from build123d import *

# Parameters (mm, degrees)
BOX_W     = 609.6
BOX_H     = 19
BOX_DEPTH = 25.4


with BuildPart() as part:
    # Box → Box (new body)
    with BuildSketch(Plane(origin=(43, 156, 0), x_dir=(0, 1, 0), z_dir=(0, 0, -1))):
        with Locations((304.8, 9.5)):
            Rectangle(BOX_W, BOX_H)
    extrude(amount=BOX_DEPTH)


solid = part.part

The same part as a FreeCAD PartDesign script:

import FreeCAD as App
import Part
import Sketcher

V = App.Vector
Q = App.Units.Quantity


def add_polygon(sketch, points):
    """Adds a closed chain of lines whose ends are joined by coincident constraints."""
    first, n = sketch.GeometryCount, len(points)
    for a, b in zip(points, points[1:] + points[:1]):
        sketch.addGeometry(Part.LineSegment(App.Vector(*a, 0), App.Vector(*b, 0)), False)
    for i in range(n):
        sketch.addConstraint(Sketcher.Constraint("Coincident", first + i, 2, first + (i + 1) % n, 1))

doc = App.newDocument("Part")
params = doc.addObject("Spreadsheet::Sheet", "Params")
for row, (alias, value) in enumerate([
    ("sketch1_height", "24 in"),
    ("pad1_length", "1 in"),
], start=1):
    params.set(f"A{row}", alias)
    params.set(f"B{row}", "=" + value)
    params.setAlias(f"B{row}", alias)

body = doc.addObject("PartDesign::Body", "Body")

sketch1 = doc.addObject("Sketcher::SketchObject", "Sketch")
body.addObject(sketch1)
sketch1.AttachmentSupport = (doc.XY_Plane, [""])
sketch1.MapMode = "FlatFace"
add_polygon(sketch1, [(62, 156), (43, 156), (43, 766), (62, 766)])
sketch1.addConstraint([
    Sketcher.Constraint("Horizontal", 0),
    Sketcher.Constraint("Vertical", 1),
    Sketcher.Constraint("Horizontal", 2),
    Sketcher.Constraint("Vertical", 3),
    Sketcher.Constraint("DistanceY", 1, 1, 1, 2, Q("24 in")),
    Sketcher.Constraint("DistanceX", 0, 2, 0, 1, Q("19 mm")),
    Sketcher.Constraint("DistanceX", -1, 1, 0, 2, Q("43 mm")),
    Sketcher.Constraint("DistanceY", -1, 1, 0, 2, Q("156 mm")),
])
sketch1.setExpression("Constraints[8]", "Params.sketch1_height")
pad1 = doc.addObject("PartDesign::Pad", "Pad")
body.addObject(pad1)
pad1.Profile = sketch1
pad1.setExpression("Length", "Params.pad1_length")
pad1.Reversed = True

doc.recompute()
